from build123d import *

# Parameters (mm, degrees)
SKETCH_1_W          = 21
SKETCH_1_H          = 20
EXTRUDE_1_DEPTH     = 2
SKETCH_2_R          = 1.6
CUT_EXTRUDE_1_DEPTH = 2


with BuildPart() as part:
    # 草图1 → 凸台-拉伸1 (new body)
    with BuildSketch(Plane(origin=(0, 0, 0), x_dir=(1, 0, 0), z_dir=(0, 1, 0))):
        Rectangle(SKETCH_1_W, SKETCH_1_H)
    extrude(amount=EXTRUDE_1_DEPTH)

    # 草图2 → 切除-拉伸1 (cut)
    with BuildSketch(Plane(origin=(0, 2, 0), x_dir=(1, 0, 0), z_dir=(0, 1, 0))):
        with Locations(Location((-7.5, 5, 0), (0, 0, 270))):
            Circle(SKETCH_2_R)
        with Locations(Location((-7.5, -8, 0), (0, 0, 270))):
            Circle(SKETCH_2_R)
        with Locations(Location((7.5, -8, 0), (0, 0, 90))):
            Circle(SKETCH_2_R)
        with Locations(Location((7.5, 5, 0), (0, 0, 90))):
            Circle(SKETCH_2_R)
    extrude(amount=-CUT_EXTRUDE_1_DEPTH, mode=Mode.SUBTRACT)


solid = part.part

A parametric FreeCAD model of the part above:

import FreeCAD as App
import Part
import Sketcher

V = App.Vector
Q = App.Units.Quantity

doc = App.newDocument("Part")
body = doc.addObject("PartDesign::Body", "Body")

sketch1 = body.newObject("Sketcher::SketchObject", "Sketch")
sketch1.AttachmentSupport = (doc.getObject("XZ_Plane"), [""])
sketch1.MapMode = "FlatFace"
sketch1.addGeometry(Part.LineSegment(V(-10.5, -10, 0), V(-10.5, 10, 0)), False)
sketch1.addGeometry(Part.LineSegment(V(-10.5, 10, 0), V(10.5, 10, 0)), False)
sketch1.addGeometry(Part.LineSegment(V(10.5, 10, 0), V(10.5, -10, 0)), False)
sketch1.addGeometry(Part.LineSegment(V(10.5, -10, 0), V(-10.5, -10, 0)), False)
sketch1.addConstraint(Sketcher.Constraint("Coincident", 0, 2, 1, 1))
sketch1.addConstraint(Sketcher.Constraint("Coincident", 1, 2, 2, 1))
sketch1.addConstraint(Sketcher.Constraint("Coincident", 2, 2, 3, 1))
sketch1.addConstraint(Sketcher.Constraint("Coincident", 3, 2, 0, 1))
sketch1.addConstraint(Sketcher.Constraint("Vertical", 0))
sketch1.addConstraint(Sketcher.Constraint("Horizontal", 1))
sketch1.addConstraint(Sketcher.Constraint("Vertical", 2))
sketch1.addConstraint(Sketcher.Constraint("Horizontal", 3))
sketch1.addConstraint(Sketcher.Constraint("Symmetric", 0, 2, 2, 2, -1, 1))
sketch1.addConstraint(Sketcher.Constraint("DistanceX", 1, 1, 1, 2, Q("21 mm")))
sketch1.addConstraint(Sketcher.Constraint("DistanceY", 0, 1, 0, 2, Q("20 mm")))
pad1 = body.newObject("PartDesign::Pad", "Pad")
pad1.Profile = sketch1
pad1.Length = 2
pad1.Reversed = True

sketch2 = body.newObject("Sketcher::SketchObject", "Sketch001")
sketch2.AttachmentSupport = (doc.getObject("XZ_Plane"), [""])
sketch2.MapMode = "FlatFace"
sketch2.AttachmentOffset = App.Placement(V(0, 0, -2), App.Rotation())
sketch2.addGeometry(Part.Circle(V(-7.5, -5, 0), V(0, 0, 1), 1.6), False)
sketch2.addGeometry(Part.Circle(V(-7.5, 8, 0), V(0, 0, 1), 1.6), False)
sketch2.addGeometry(Part.Circle(V(7.5, 8, 0), V(0, 0, 1), 1.6), False)
sketch2.addGeometry(Part.Circle(V(7.5, -5, 0), V(0, 0, 1), 1.6), False)
sketch2.addConstraint(Sketcher.Constraint("Equal", 0, 1))
sketch2.addConstraint(Sketcher.Constraint("Equal", 1, 2))
sketch2.addConstraint(Sketcher.Constraint("Equal", 2, 3))
sketch2.addConstraint(Sketcher.Constraint("Symmetric", 1, 3, 2, 3, -2))
sketch2.addConstraint(Sketcher.Constraint("Symmetric", 0, 3, 3, 3, -2))
sketch2.addConstraint(Sketcher.Constraint("Vertical", 0, 3, 1, 3))
sketch2.addConstraint(Sketcher.Constraint("Diameter", 0, Q("3.2 mm")))
sketch2.addConstraint(Sketcher.Constraint("DistanceY", 0, 3, -1, 1, Q("5 mm")))
sketch2.addConstraint(Sketcher.Constraint("DistanceY", -1, 1, 1, 3, Q("8 mm")))
sketch2.addConstraint(Sketcher.Constraint("DistanceX", 1, 3, 2, 3, Q("15 mm")))
pocket1 = body.newObject("PartDesign::Pocket", "Pocket")
pocket1.Profile = sketch2
pocket1.Length = 2
pocket1.Reversed = True

doc.recompute()
